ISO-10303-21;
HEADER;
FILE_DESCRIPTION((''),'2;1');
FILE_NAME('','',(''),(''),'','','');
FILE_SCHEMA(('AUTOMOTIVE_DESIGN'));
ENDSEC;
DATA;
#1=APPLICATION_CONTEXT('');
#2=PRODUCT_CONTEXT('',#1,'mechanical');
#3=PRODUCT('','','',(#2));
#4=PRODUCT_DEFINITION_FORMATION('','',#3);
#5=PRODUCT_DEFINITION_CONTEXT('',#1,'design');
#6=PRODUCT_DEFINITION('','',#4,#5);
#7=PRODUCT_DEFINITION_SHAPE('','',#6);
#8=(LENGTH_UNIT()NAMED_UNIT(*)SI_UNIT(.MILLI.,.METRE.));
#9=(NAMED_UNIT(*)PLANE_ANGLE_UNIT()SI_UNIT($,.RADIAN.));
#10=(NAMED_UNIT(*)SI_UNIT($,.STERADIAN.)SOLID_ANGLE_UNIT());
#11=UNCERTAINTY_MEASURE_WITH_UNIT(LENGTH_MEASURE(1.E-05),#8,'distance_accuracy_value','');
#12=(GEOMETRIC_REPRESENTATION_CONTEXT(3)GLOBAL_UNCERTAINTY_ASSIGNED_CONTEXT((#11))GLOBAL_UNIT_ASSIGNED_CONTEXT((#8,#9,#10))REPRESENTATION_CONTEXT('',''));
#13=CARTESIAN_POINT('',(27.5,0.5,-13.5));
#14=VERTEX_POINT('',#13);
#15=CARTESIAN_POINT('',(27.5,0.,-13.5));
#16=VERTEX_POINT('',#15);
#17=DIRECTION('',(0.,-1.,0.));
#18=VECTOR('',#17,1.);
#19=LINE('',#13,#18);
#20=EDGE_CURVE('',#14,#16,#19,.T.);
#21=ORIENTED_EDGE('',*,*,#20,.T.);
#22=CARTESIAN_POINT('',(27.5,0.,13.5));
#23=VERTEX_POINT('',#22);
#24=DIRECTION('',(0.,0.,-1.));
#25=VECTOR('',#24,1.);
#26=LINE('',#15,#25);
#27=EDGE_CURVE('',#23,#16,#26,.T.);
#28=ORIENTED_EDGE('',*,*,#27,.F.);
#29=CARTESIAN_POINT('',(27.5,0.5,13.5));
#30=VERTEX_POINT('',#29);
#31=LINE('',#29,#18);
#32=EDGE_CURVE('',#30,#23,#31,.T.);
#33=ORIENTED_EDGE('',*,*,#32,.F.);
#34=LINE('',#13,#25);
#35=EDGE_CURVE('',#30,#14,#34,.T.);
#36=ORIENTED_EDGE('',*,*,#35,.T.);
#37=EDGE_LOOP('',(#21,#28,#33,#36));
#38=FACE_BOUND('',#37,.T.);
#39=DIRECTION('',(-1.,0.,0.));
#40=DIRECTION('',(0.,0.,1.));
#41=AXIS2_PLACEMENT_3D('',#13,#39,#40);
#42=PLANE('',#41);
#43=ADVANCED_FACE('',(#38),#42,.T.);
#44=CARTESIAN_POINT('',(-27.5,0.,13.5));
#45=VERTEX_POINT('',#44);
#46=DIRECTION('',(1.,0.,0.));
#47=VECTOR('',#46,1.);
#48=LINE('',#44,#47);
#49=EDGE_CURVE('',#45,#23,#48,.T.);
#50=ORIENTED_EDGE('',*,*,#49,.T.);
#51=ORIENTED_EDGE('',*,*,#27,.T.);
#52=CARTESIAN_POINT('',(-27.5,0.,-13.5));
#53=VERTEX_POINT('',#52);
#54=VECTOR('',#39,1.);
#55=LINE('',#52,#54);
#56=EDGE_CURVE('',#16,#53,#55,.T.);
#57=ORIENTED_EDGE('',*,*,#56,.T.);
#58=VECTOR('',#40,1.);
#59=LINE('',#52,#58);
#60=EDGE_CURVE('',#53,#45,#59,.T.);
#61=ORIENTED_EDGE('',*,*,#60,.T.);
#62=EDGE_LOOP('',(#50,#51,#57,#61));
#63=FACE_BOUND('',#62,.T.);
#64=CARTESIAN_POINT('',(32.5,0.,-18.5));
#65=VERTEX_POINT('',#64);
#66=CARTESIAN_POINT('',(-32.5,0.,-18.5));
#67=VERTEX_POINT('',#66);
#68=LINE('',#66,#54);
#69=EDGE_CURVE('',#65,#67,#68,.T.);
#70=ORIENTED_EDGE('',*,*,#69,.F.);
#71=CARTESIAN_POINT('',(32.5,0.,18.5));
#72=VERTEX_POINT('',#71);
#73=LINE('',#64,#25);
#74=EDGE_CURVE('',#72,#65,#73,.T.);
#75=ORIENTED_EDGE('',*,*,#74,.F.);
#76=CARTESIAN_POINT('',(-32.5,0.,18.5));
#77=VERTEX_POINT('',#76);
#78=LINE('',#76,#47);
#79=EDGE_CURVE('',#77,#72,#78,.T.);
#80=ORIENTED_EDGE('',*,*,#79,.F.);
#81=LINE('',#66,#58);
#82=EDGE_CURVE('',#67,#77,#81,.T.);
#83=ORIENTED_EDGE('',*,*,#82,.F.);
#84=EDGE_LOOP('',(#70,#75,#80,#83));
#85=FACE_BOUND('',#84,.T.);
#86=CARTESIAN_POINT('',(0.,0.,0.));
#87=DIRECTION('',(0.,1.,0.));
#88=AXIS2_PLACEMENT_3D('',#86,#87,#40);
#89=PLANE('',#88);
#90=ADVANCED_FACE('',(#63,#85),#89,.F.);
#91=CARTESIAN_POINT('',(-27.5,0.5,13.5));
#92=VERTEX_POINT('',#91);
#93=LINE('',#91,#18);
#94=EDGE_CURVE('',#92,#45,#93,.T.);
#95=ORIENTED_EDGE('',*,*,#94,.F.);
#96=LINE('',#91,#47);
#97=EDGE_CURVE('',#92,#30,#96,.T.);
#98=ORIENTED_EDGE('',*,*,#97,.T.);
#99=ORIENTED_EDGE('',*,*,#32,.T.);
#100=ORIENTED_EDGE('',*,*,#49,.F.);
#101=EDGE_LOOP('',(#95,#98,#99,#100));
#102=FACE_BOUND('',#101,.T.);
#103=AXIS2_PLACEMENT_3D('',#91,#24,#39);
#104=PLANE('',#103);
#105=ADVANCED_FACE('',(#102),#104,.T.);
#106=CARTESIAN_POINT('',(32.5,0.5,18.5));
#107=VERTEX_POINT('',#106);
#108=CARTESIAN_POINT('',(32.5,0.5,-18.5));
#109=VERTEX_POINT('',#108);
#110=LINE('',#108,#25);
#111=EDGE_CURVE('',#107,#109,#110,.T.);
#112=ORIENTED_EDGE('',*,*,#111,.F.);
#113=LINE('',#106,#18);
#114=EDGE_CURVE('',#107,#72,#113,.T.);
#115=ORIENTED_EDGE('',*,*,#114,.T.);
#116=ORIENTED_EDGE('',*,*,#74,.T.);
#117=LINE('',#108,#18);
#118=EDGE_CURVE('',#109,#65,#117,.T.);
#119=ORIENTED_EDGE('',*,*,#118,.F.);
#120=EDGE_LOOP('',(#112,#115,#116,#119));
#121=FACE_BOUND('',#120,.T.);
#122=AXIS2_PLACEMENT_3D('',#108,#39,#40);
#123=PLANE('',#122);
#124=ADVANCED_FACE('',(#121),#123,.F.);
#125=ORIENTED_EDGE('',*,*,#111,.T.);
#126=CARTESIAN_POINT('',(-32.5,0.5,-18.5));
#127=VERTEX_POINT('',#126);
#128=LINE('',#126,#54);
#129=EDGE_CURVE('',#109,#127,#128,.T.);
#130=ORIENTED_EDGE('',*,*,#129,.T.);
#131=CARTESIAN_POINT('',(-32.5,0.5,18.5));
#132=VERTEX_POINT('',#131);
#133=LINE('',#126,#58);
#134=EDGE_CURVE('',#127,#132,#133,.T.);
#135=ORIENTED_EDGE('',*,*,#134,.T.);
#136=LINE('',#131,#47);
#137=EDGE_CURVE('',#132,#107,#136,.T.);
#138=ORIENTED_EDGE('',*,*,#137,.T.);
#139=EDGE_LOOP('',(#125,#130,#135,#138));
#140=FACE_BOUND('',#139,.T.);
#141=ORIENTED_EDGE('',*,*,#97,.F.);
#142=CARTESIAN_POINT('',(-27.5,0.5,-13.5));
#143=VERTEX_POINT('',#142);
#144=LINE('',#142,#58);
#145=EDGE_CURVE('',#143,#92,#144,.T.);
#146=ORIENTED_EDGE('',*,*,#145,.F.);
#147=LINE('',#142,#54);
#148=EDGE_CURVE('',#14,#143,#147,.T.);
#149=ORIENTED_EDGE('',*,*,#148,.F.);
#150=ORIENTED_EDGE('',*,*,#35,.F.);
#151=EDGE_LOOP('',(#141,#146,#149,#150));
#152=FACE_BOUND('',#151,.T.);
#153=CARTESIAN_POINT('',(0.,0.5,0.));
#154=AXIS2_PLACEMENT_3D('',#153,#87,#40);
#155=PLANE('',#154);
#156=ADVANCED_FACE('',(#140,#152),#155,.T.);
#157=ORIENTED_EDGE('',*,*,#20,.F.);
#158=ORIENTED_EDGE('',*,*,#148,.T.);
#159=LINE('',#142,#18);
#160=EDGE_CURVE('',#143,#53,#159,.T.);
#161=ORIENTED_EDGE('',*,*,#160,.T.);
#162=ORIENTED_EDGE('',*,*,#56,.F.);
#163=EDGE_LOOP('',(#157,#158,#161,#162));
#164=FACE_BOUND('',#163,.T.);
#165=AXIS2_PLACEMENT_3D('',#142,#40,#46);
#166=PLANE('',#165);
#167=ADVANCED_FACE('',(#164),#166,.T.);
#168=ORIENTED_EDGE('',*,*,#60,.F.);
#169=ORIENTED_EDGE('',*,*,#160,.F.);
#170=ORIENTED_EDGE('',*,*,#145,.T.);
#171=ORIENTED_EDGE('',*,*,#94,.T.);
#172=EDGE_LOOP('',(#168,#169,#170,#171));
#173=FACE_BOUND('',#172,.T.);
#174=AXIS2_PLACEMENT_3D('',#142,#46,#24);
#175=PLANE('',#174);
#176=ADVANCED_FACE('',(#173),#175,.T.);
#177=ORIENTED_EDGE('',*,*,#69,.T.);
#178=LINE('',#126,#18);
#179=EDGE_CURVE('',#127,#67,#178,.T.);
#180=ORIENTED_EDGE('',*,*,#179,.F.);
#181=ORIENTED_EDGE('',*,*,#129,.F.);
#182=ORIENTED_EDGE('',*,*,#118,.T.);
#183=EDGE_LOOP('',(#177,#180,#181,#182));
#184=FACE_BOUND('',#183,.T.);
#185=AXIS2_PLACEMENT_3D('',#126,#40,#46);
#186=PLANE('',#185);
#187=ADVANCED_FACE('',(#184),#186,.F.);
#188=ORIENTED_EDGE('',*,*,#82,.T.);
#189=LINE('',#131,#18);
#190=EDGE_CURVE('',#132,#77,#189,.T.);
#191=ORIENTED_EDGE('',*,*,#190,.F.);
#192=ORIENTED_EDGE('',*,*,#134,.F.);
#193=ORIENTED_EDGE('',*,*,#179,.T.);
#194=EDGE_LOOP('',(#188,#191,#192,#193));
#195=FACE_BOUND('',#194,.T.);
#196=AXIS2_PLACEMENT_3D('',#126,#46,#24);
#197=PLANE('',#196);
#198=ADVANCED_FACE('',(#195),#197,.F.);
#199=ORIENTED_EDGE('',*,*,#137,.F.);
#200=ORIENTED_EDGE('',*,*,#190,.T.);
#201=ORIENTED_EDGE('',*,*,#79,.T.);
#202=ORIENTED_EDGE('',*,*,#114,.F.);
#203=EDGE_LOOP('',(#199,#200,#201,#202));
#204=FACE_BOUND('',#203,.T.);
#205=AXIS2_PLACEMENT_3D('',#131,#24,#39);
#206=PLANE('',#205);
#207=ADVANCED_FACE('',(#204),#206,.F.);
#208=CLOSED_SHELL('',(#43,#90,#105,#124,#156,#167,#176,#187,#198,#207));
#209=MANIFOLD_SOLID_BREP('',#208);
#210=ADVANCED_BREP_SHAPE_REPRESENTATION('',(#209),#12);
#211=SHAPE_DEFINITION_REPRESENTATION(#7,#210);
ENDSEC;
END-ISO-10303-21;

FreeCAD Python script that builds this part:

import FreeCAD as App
import Part
import Sketcher
from FreeCAD import Vector
Q = App.Units.Quantity

doc = App.newDocument("Part")
body = doc.addObject("PartDesign::Body", "Body")

sketch1 = doc.addObject("Sketcher::SketchObject", "Sketch")
body.addObject(sketch1)
sketch1.AttachmentSupport = (doc.XZ_Plane, [""])
sketch1.MapMode = "FlatFace"
sketch1.addGeometry([
    Part.LineSegment(Vector(-32.5, -18.5, 0), Vector(-32.5, 18.5, 0)),
    Part.LineSegment(Vector(-32.5, 18.5, 0), Vector(32.5, 18.5, 0)),
    Part.LineSegment(Vector(32.5, 18.5, 0), Vector(32.5, -18.5, 0)),
    Part.LineSegment(Vector(32.5, -18.5, 0), Vector(-32.5, -18.5, 0)),
    Part.LineSegment(Vector(27.5, 13.5, 0), Vector(-27.5, 13.5, 0)),
    Part.LineSegment(Vector(-27.5, 13.5, 0), Vector(-27.5, -13.5, 0)),
    Part.LineSegment(Vector(-27.5, -13.5, 0), Vector(27.5, -13.5, 0)),
    Part.LineSegment(Vector(27.5, -13.5, 0), Vector(27.5, 13.5, 0)),
], False)
sketch1.addConstraint([
    Sketcher.Constraint("Coincident", 0, 2, 1, 1),
    Sketcher.Constraint("Coincident", 1, 2, 2, 1),
    Sketcher.Constraint("Coincident", 2, 2, 3, 1),
    Sketcher.Constraint("Coincident", 3, 2, 0, 1),
    Sketcher.Constraint("Coincident", 4, 2, 5, 1),
    Sketcher.Constraint("Coincident", 5, 2, 6, 1),
    Sketcher.Constraint("Coincident", 6, 2, 7, 1),
    Sketcher.Constraint("Coincident", 7, 2, 4, 1),
    Sketcher.Constraint("Vertical", 0),
    Sketcher.Constraint("Horizontal", 1),
    Sketcher.Constraint("Vertical", 2),
    Sketcher.Constraint("Horizontal", 3),
    Sketcher.Constraint("Horizontal", 4),
    Sketcher.Constraint("Vertical", 5),
    Sketcher.Constraint("Horizontal", 6),
    Sketcher.Constraint("Vertical", 7),
    Sketcher.Constraint("Symmetric", 0, 2, 2, 2, -1, 1),
    Sketcher.Constraint("Symmetric", 4, 2, 6, 2, -1, 1),
    Sketcher.Constraint("DistanceX", 1, 1, 1, 2, Q("65 mm")),
    Sketcher.Constraint("DistanceX", 4, 2, 4, 1, Q("55 mm")),
    Sketcher.Constraint("DistanceY", 0, 1, 0, 2, Q("37 mm")),
    Sketcher.Constraint("DistanceY", 5, 2, 5, 1, Q("27 mm")),
])
pad1 = doc.addObject("PartDesign::Pad", "Pad")
body.addObject(pad1)
pad1.Profile = sketch1
pad1.Length = 0.5
pad1.Reversed = True

doc.recompute()
